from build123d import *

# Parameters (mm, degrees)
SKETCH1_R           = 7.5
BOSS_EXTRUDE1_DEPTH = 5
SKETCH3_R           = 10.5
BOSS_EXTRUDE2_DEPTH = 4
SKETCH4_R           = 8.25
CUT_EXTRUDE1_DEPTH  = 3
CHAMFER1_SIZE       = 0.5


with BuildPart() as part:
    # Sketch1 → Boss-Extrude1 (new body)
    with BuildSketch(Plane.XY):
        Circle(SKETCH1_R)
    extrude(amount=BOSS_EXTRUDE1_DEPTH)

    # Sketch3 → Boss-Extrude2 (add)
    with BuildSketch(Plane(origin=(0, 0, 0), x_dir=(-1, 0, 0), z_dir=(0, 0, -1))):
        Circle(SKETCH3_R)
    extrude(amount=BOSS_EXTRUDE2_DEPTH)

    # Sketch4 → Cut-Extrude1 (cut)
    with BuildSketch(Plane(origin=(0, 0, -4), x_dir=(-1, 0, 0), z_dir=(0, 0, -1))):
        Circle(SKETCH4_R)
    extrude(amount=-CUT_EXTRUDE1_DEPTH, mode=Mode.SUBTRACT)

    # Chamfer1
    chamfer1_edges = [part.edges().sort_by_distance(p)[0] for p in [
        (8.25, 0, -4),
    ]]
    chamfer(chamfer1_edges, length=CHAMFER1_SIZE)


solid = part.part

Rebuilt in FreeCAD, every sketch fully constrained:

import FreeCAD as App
import Part
import Sketcher

V = App.Vector


def edges_at(feature, points):
    """Names of the edges that pass closest to the given points."""
    edges = feature.Shape.Edges
    near = lambda p: min(range(len(edges)), key=lambda i: edges[i].distToShape(Part.Vertex(*p))[0])
    return sorted({f"Edge{near(p) + 1}" for p in points})

doc = App.newDocument("Part")
body = doc.addObject("PartDesign::Body", "Body")

# Sketch on XY plane
sketch1 = body.newObject("Sketcher::SketchObject", "Sketch")
sketch1.AttachmentSupport = (doc.getObject("XY_Plane"), [""])
sketch1.MapMode = "FlatFace"
sketch1.addGeometry(Part.Circle(V(0, 0, 0), V(0, 0, 1), 8), False)
sketch1.addConstraint(Sketcher.Constraint("Coincident", 0, 3, -1, 1))
sketch1.addConstraint(Sketcher.Constraint("Diameter", 0, 15.0))
pad1 = body.newObject("PartDesign::Pad", "Pad")
pad1.Profile = sketch1
pad1.Length = 5

# Sketch on XY plane
sketch2 = body.newObject("Sketcher::SketchObject", "Sketch001")
sketch2.AttachmentSupport = (doc.getObject("XY_Plane"), [""])
sketch2.MapMode = "FlatFace"
sketch2.addGeometry(Part.Circle(V(0, 0, 0), V(0, 0, 1), 10), False)
sketch2.addConstraint(Sketcher.Constraint("Coincident", 0, 3, -1, 1))
sketch2.addConstraint(Sketcher.Constraint("Diameter", 0, 21.0))
pad2 = body.newObject("PartDesign::Pad", "Pad001")
pad2.Profile = sketch2
pad2.Length = 4
pad2.Reversed = True

# Sketch on XY plane
sketch3 = body.newObject("Sketcher::SketchObject", "Sketch002")
sketch3.AttachmentSupport = (doc.getObject("XY_Plane"), [""])
sketch3.MapMode = "FlatFace"
sketch3.AttachmentOffset = App.Placement(V(0, 0, -4), App.Rotation())
sketch3.addGeometry(Part.Circle(V(0, 0, 0), V(0, 0, 1), 8), False)
sketch3.addConstraint(Sketcher.Constraint("Coincident", 0, 3, -1, 1))
sketch3.addConstraint(Sketcher.Constraint("Diameter", 0, 16.5))
pocket1 = body.newObject("PartDesign::Pocket", "Pocket")
pocket1.Profile = sketch3
pocket1.Length = 3
pocket1.Reversed = True
doc.recompute()

chamfer = body.newObject("PartDesign::Chamfer", "Chamfer")
chamfer.Base = (pocket1, edges_at(pocket1, [(8.25, 0, -4)]))
chamfer.Size = 0.5

doc.recompute()
